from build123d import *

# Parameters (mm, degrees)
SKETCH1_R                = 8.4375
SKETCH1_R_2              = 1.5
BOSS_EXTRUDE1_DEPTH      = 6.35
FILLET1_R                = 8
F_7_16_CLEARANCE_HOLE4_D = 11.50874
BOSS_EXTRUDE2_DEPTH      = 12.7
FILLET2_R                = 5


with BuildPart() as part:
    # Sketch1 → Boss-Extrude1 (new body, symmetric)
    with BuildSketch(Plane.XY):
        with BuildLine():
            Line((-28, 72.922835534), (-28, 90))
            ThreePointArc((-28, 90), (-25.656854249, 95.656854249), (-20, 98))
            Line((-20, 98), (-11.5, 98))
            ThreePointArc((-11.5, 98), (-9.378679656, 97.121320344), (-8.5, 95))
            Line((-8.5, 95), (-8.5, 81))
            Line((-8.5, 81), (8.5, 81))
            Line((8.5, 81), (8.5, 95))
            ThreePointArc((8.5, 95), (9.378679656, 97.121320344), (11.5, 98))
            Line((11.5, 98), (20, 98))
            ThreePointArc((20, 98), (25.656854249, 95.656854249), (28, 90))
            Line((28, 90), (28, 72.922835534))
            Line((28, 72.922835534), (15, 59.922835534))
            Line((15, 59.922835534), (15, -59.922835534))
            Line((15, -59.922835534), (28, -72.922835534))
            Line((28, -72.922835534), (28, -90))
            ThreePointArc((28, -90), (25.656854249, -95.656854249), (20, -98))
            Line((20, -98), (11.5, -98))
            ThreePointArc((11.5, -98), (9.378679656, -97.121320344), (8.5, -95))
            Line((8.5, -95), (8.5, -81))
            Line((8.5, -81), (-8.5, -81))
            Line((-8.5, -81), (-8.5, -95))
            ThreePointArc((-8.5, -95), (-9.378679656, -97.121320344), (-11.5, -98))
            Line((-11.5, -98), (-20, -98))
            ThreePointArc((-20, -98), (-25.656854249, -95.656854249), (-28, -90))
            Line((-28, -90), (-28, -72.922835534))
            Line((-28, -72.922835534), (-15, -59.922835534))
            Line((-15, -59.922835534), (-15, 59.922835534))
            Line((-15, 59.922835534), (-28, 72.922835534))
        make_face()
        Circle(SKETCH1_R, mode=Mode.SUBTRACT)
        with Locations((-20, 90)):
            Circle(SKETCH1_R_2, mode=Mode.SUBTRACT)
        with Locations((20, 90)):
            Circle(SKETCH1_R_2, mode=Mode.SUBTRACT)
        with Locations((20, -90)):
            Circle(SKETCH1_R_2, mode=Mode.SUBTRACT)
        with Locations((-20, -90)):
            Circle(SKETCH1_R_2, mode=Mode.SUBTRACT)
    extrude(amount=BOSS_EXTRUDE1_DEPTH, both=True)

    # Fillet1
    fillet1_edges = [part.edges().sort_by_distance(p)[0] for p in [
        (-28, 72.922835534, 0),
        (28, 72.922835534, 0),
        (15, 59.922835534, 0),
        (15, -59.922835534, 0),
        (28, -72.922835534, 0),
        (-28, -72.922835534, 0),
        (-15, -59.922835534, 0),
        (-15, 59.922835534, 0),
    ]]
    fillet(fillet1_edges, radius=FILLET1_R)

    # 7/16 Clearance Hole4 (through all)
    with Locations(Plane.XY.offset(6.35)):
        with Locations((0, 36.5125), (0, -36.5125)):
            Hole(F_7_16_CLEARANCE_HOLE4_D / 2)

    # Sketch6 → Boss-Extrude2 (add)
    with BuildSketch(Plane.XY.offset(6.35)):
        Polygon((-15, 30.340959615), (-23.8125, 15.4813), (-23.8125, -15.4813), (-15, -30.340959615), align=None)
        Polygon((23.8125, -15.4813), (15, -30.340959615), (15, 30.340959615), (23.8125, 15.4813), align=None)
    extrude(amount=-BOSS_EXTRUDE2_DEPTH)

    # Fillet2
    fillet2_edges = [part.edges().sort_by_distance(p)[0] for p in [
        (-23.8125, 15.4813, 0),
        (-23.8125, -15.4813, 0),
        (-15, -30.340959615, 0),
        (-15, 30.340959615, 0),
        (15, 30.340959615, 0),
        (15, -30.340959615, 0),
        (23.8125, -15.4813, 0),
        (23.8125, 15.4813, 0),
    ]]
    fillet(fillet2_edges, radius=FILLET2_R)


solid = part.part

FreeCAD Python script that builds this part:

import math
import FreeCAD as App
import Part
import Sketcher

V = App.Vector
Q = App.Units.Quantity


def edges_at(feature, points):
    """Names of the edges that pass closest to the given points."""
    edges = feature.Shape.Edges
    near = lambda p: min(range(len(edges)), key=lambda i: edges[i].distToShape(Part.Vertex(*p))[0])
    return sorted({f"Edge{near(p) + 1}" for p in points})


def add_polygon(sketch, points):
    """Adds a closed chain of lines whose ends are joined by coincident constraints."""
    first, n = sketch.GeometryCount, len(points)
    for a, b in zip(points, points[1:] + points[:1]):
        sketch.addGeometry(Part.LineSegment(App.Vector(*a, 0), App.Vector(*b, 0)), False)
    for i in range(n):
        sketch.addConstraint(Sketcher.Constraint("Coincident", first + i, 2, first + (i + 1) % n, 1))

doc = App.newDocument("Part")
body = doc.addObject("PartDesign::Body", "Body")

# Sketch on XY plane
sketch1 = body.newObject("Sketcher::SketchObject", "Sketch")
sketch1.AttachmentSupport = (doc.getObject("XY_Plane"), [""])
sketch1.MapMode = "FlatFace"
sketch1.addGeometry([
    Part.LineSegment(V(-28, 90, 0), V(-28, 72.9, 0)),  # 0
    Part.LineSegment(V(-28, 72.9, 0), V(-15, 59.9, 0)),  # 1
    Part.LineSegment(V(-15, 59.9, 0), V(-15, -59.9, 0)),  # 2
    Part.LineSegment(V(-15, -59.9, 0), V(-28, -72.9, 0)),  # 3
    Part.LineSegment(V(-28, -72.9, 0), V(-28, -90, 0)),  # 4
    Part.ArcOfCircle(Part.Circle(V(-20, -90, 0), V(0, 0, 1), 8), math.radians(-180), math.radians(-90)),  # 5
    Part.LineSegment(V(-20, -98, 0), V(-11.5, -98, 0)),  # 6
    Part.ArcOfCircle(Part.Circle(V(-11.5, -95, 0), V(0, 0, 1), 3), math.radians(-90), math.radians(0)),  # 7
    Part.LineSegment(V(-8.5, -95, 0), V(-8.5, -81, 0)),  # 8
    Part.LineSegment(V(-8.5, -81, 0), V(8.5, -81, 0)),  # 9
    Part.LineSegment(V(8.5, -81, 0), V(8.5, -95, 0)),  # 10
    Part.ArcOfCircle(Part.Circle(V(11.5, -95, 0), V(0, 0, 1), 3), math.radians(180), math.radians(270)),  # 11
    Part.LineSegment(V(11.5, -98, 0), V(20, -98, 0)),  # 12
    Part.ArcOfCircle(Part.Circle(V(20, -90, 0), V(0, 0, 1), 8), math.radians(-90), math.radians(0)),  # 13
    Part.LineSegment(V(28, -90, 0), V(28, -72.9, 0)),  # 14
    Part.LineSegment(V(28, -72.9, 0), V(15, -59.9, 0)),  # 15
    Part.LineSegment(V(15, -59.9, 0), V(15, 59.9, 0)),  # 16
    Part.LineSegment(V(15, 59.9, 0), V(28, 72.9, 0)),  # 17
    Part.LineSegment(V(28, 72.9, 0), V(28, 90, 0)),  # 18
    Part.ArcOfCircle(Part.Circle(V(20, 90, 0), V(0, 0, 1), 8), math.radians(0), math.radians(90)),  # 19
    Part.LineSegment(V(20, 98, 0), V(11.5, 98, 0)),  # 20
    Part.ArcOfCircle(Part.Circle(V(11.5, 95, 0), V(0, 0, 1), 3), math.radians(90), math.radians(180)),  # 21
    Part.LineSegment(V(8.5, 95, 0), V(8.5, 81, 0)),  # 22
    Part.LineSegment(V(8.5, 81, 0), V(-8.5, 81, 0)),  # 23
    Part.LineSegment(V(-8.5, 81, 0), V(-8.5, 95, 0)),  # 24
    Part.ArcOfCircle(Part.Circle(V(-11.5, 95, 0), V(0, 0, 1), 3), math.radians(0), math.radians(90)),  # 25
    Part.LineSegment(V(-11.5, 98, 0), V(-20, 98, 0)),  # 26
    Part.ArcOfCircle(Part.Circle(V(-20, 90, 0), V(0, 0, 1), 8), math.radians(90), math.radians(180)),  # 27
    Part.Circle(V(20, -90, 0), V(0, 0, 1), 1.5),  # 28
    Part.Circle(V(-20, -90, 0), V(0, 0, 1), 1.5),  # 29
    Part.Circle(V(20, 90, 0), V(0, 0, 1), 1.5),  # 30
    Part.Circle(V(0, 0, 0), V(0, 0, 1), 8.4),  # 31
    Part.Circle(V(-20, 90, 0), V(0, 0, 1), 1.5),  # 32
], False)
sketch1.addConstraint([
    Sketcher.Constraint("Coincident", 0, 2, 1, 1),
    Sketcher.Constraint("Coincident", 1, 2, 2, 1),
    Sketcher.Constraint("Coincident", 2, 2, 3, 1),
    Sketcher.Constraint("Coincident", 3, 2, 4, 1),
    Sketcher.Constraint("Tangent", 4, 2, 5, 1),
    Sketcher.Constraint("Tangent", 5, 2, 6, 1),
    Sketcher.Constraint("Tangent", 6, 2, 7, 1),
    Sketcher.Constraint("Tangent", 7, 2, 8, 1),
    Sketcher.Constraint("Coincident", 8, 2, 9, 1),
    Sketcher.Constraint("Coincident", 9, 2, 10, 1),
    Sketcher.Constraint("Tangent", 10, 2, 11, 1),
    Sketcher.Constraint("Tangent", 11, 2, 12, 1),
    Sketcher.Constraint("Tangent", 12, 2, 13, 1),
    Sketcher.Constraint("Tangent", 13, 2, 14, 1),
    Sketcher.Constraint("Coincident", 14, 2, 15, 1),
    Sketcher.Constraint("Coincident", 15, 2, 16, 1),
    Sketcher.Constraint("Coincident", 16, 2, 17, 1),
    Sketcher.Constraint("Coincident", 17, 2, 18, 1),
    Sketcher.Constraint("Tangent", 18, 2, 19, 1),
    Sketcher.Constraint("Tangent", 19, 2, 20, 1),
    Sketcher.Constraint("Tangent", 20, 2, 21, 1),
    Sketcher.Constraint("Tangent", 21, 2, 22, 1),
    Sketcher.Constraint("Coincident", 22, 2, 23, 1),
    Sketcher.Constraint("Coincident", 23, 2, 24, 1),
    Sketcher.Constraint("Tangent", 24, 2, 25, 1),
    Sketcher.Constraint("Tangent", 25, 2, 26, 1),
    Sketcher.Constraint("Tangent", 26, 2, 27, 1),
    Sketcher.Constraint("Tangent", 27, 2, 0, 1),
    Sketcher.Constraint("Vertical", 0),
    Sketcher.Constraint("Vertical", 2),
    Sketcher.Constraint("Vertical", 4),
    Sketcher.Constraint("Horizontal", 6),
    Sketcher.Constraint("Vertical", 8),
    Sketcher.Constraint("Horizontal", 9),
    Sketcher.Constraint("Vertical", 10),
    Sketcher.Constraint("Horizontal", 12),
    Sketcher.Constraint("Vertical", 14),
    Sketcher.Constraint("Vertical", 16),
    Sketcher.Constraint("Vertical", 18),
    Sketcher.Constraint("Horizontal", 20),
    Sketcher.Constraint("Vertical", 22),
    Sketcher.Constraint("Horizontal", 23),
    Sketcher.Constraint("Vertical", 24),
    Sketcher.Constraint("Horizontal", 26),
    Sketcher.Constraint("Coincident", 31, 3, -1, 1),
    Sketcher.Constraint("Coincident", 28, 3, 13, 3),
    Sketcher.Constraint("Coincident", 29, 3, 5, 3),
    Sketcher.Constraint("Coincident", 30, 3, 19, 3),
    Sketcher.Constraint("Coincident", 32, 3, 27, 3),
    Sketcher.Constraint("Equal", 7, 11),
    Sketcher.Constraint("Equal", 5, 13),
    Sketcher.Constraint("Equal", 13, 19),
    Sketcher.Constraint("Equal", 11, 21),
    Sketcher.Constraint("Equal", 21, 25),
    Sketcher.Constraint("Equal", 19, 27),
    Sketcher.Constraint("Equal", 28, 29),
    Sketcher.Constraint("Equal", 29, 30),
    Sketcher.Constraint("Equal", 30, 32),
    Sketcher.Constraint("Symmetric", 5, 3, 19, 3, -1, 1),
    Sketcher.Constraint("Symmetric", 11, 3, 25, 3, -1, 1),
    Sketcher.Constraint("Symmetric", 0, 2, 14, 2, -1, 1),
    Sketcher.Constraint("Symmetric", 1, 2, 15, 2, -1, 1),
    Sketcher.Constraint("Symmetric", 8, 2, 22, 2, -1, 1),
    Sketcher.Constraint("Symmetric", 7, 3, 11, 3, -2),
    Sketcher.Constraint("Symmetric", 3, 2, 14, 2, -2),
    Sketcher.Constraint("Perpendicular", 1, 3),
    Sketcher.Constraint("Perpendicular", 15, 17),
    Sketcher.Constraint("Horizontal", 2, 2, 15, 2),
    Sketcher.Constraint("Horizontal", 1, 2, 16, 2),
    Sketcher.Constraint("Diameter", 28, 3.0),
    Sketcher.Constraint("Radius", 5, 8.0),
    Sketcher.Constraint("Radius", 7, 3.0),
    Sketcher.Constraint("DistanceX", 9, 1, 9, 2, 17.0),
    Sketcher.Constraint("DistanceY", 8, 1, 8, 2, 14.0),
    Sketcher.Constraint("Diameter", 31, 16.875),
    Sketcher.Constraint("DistanceX", 6, 1, 6, 2, 8.5),
    Sketcher.Constraint("DistanceY", 5, 3, -1, 1, 90.0),
    Sketcher.Constraint("DistanceX", 1, 2, -1, 1, 15.0),
    Sketcher.Constraint("DistanceY", 2, 2, 2, 1, 119.845671),
])
pad1 = body.newObject("PartDesign::Pad", "Pad")
pad1.Profile = sketch1
pad1.Length = 12.7
pad1.Midplane = True
doc.recompute()

fillet = body.newObject("PartDesign::Fillet", "Fillet")
fillet.Base = (pad1, edges_at(pad1, [
    (-28, 72.923, 0),
    (28, 72.923, 0),
    (15, 59.923, 0),
    (15, -59.923, 0),
    (28, -72.923, 0),
    (-28, -72.923, 0),
    (-15, -59.923, 0),
    (-15, 59.923, 0),
]))
fillet.Radius = 8

# Sketch on XY plane
sketch2 = body.newObject("Sketcher::SketchObject", "Sketch001")
sketch2.AttachmentSupport = (doc.getObject("XY_Plane"), [""])
sketch2.MapMode = "FlatFace"
sketch2.AttachmentOffset = App.Placement(V(0, 0, 6.35), App.Rotation())
sketch2.addGeometry([
    Part.Circle(V(0, 37, 0), V(0, 0, 1), 6),
    Part.Circle(V(0, -37, 0), V(0, 0, 1), 6),
], False)
sketch2.addConstraint([
    Sketcher.Constraint("Equal", 0, 1),
    Sketcher.Constraint("Symmetric", 0, 3, 1, 3, -1, 1),
    Sketcher.Constraint("PointOnObject", 0, 3, -2),
    Sketcher.Constraint("Diameter", 0, 11.50874),
    Sketcher.Constraint("DistanceY", 1, 3, 0, 3, 73.025),
])
doc.recompute()
hole = body.newObject("PartDesign::Hole", "Hole")
hole.Profile = sketch2
hole.ThreadType = "None"
hole.Diameter = 11.50874
hole.DepthType = "ThroughAll"

# Sketch on XY plane
sketch3 = body.newObject("Sketcher::SketchObject", "Sketch002")
sketch3.AttachmentSupport = (doc.getObject("XY_Plane"), [""])
sketch3.MapMode = "FlatFace"
sketch3.AttachmentOffset = App.Placement(V(0, 0, 6.35), App.Rotation())
add_polygon(sketch3, [(-15, 30), (-24, 15), (-24, -15), (-15, -30)])  # lines 0-3
add_polygon(sketch3, [(15, -30), (24, -15), (24, 15), (15, 30)])  # lines 4-7
sketch3.addConstraint([
    Sketcher.Constraint("Vertical", 1),
    Sketcher.Constraint("Vertical", 3),
    Sketcher.Constraint("Vertical", 5),
    Sketcher.Constraint("Vertical", 7),
    Sketcher.Constraint("Symmetric", 0, 2, 4, 2, -1, 1),
    Sketcher.Constraint("Symmetric", 2, 2, 6, 2, -1, 1),
    Sketcher.Constraint("Parallel", 0, 4),
    Sketcher.Constraint("Parallel", 2, 6),
    Sketcher.Constraint("Horizontal", 1, 2, 4, 2),
    Sketcher.Constraint("Horizontal", 3, 2, 6, 2),
    Sketcher.Constraint("DistanceX", 2, 2, -1, 1, 15.0),
    Sketcher.Constraint("Angle", 0, Q("-120.67 deg")),
    Sketcher.Constraint("DistanceY", 1, 2, 1, 1, 30.9626),
    Sketcher.Constraint("DistanceX", 1, 2, 4, 2, 47.625),
])
pad2 = body.newObject("PartDesign::Pad", "Pad001")
pad2.Profile = sketch3
pad2.Length = 12.7
pad2.Reversed = True
doc.recompute()

fillet2 = body.newObject("PartDesign::Fillet", "Fillet001")
fillet2.Base = (pad2, edges_at(pad2, [
    (-23.812, 15.481, 0),
    (-23.812, -15.481, 0),
    (-15, -30.341, 0),
    (-15, 30.341, 0),
    (15, 30.341, 0),
    (15, -30.341, 0),
    (23.812, -15.481, 0),
    (23.812, 15.481, 0),
]))
fillet2.Radius = 5

doc.recompute()
